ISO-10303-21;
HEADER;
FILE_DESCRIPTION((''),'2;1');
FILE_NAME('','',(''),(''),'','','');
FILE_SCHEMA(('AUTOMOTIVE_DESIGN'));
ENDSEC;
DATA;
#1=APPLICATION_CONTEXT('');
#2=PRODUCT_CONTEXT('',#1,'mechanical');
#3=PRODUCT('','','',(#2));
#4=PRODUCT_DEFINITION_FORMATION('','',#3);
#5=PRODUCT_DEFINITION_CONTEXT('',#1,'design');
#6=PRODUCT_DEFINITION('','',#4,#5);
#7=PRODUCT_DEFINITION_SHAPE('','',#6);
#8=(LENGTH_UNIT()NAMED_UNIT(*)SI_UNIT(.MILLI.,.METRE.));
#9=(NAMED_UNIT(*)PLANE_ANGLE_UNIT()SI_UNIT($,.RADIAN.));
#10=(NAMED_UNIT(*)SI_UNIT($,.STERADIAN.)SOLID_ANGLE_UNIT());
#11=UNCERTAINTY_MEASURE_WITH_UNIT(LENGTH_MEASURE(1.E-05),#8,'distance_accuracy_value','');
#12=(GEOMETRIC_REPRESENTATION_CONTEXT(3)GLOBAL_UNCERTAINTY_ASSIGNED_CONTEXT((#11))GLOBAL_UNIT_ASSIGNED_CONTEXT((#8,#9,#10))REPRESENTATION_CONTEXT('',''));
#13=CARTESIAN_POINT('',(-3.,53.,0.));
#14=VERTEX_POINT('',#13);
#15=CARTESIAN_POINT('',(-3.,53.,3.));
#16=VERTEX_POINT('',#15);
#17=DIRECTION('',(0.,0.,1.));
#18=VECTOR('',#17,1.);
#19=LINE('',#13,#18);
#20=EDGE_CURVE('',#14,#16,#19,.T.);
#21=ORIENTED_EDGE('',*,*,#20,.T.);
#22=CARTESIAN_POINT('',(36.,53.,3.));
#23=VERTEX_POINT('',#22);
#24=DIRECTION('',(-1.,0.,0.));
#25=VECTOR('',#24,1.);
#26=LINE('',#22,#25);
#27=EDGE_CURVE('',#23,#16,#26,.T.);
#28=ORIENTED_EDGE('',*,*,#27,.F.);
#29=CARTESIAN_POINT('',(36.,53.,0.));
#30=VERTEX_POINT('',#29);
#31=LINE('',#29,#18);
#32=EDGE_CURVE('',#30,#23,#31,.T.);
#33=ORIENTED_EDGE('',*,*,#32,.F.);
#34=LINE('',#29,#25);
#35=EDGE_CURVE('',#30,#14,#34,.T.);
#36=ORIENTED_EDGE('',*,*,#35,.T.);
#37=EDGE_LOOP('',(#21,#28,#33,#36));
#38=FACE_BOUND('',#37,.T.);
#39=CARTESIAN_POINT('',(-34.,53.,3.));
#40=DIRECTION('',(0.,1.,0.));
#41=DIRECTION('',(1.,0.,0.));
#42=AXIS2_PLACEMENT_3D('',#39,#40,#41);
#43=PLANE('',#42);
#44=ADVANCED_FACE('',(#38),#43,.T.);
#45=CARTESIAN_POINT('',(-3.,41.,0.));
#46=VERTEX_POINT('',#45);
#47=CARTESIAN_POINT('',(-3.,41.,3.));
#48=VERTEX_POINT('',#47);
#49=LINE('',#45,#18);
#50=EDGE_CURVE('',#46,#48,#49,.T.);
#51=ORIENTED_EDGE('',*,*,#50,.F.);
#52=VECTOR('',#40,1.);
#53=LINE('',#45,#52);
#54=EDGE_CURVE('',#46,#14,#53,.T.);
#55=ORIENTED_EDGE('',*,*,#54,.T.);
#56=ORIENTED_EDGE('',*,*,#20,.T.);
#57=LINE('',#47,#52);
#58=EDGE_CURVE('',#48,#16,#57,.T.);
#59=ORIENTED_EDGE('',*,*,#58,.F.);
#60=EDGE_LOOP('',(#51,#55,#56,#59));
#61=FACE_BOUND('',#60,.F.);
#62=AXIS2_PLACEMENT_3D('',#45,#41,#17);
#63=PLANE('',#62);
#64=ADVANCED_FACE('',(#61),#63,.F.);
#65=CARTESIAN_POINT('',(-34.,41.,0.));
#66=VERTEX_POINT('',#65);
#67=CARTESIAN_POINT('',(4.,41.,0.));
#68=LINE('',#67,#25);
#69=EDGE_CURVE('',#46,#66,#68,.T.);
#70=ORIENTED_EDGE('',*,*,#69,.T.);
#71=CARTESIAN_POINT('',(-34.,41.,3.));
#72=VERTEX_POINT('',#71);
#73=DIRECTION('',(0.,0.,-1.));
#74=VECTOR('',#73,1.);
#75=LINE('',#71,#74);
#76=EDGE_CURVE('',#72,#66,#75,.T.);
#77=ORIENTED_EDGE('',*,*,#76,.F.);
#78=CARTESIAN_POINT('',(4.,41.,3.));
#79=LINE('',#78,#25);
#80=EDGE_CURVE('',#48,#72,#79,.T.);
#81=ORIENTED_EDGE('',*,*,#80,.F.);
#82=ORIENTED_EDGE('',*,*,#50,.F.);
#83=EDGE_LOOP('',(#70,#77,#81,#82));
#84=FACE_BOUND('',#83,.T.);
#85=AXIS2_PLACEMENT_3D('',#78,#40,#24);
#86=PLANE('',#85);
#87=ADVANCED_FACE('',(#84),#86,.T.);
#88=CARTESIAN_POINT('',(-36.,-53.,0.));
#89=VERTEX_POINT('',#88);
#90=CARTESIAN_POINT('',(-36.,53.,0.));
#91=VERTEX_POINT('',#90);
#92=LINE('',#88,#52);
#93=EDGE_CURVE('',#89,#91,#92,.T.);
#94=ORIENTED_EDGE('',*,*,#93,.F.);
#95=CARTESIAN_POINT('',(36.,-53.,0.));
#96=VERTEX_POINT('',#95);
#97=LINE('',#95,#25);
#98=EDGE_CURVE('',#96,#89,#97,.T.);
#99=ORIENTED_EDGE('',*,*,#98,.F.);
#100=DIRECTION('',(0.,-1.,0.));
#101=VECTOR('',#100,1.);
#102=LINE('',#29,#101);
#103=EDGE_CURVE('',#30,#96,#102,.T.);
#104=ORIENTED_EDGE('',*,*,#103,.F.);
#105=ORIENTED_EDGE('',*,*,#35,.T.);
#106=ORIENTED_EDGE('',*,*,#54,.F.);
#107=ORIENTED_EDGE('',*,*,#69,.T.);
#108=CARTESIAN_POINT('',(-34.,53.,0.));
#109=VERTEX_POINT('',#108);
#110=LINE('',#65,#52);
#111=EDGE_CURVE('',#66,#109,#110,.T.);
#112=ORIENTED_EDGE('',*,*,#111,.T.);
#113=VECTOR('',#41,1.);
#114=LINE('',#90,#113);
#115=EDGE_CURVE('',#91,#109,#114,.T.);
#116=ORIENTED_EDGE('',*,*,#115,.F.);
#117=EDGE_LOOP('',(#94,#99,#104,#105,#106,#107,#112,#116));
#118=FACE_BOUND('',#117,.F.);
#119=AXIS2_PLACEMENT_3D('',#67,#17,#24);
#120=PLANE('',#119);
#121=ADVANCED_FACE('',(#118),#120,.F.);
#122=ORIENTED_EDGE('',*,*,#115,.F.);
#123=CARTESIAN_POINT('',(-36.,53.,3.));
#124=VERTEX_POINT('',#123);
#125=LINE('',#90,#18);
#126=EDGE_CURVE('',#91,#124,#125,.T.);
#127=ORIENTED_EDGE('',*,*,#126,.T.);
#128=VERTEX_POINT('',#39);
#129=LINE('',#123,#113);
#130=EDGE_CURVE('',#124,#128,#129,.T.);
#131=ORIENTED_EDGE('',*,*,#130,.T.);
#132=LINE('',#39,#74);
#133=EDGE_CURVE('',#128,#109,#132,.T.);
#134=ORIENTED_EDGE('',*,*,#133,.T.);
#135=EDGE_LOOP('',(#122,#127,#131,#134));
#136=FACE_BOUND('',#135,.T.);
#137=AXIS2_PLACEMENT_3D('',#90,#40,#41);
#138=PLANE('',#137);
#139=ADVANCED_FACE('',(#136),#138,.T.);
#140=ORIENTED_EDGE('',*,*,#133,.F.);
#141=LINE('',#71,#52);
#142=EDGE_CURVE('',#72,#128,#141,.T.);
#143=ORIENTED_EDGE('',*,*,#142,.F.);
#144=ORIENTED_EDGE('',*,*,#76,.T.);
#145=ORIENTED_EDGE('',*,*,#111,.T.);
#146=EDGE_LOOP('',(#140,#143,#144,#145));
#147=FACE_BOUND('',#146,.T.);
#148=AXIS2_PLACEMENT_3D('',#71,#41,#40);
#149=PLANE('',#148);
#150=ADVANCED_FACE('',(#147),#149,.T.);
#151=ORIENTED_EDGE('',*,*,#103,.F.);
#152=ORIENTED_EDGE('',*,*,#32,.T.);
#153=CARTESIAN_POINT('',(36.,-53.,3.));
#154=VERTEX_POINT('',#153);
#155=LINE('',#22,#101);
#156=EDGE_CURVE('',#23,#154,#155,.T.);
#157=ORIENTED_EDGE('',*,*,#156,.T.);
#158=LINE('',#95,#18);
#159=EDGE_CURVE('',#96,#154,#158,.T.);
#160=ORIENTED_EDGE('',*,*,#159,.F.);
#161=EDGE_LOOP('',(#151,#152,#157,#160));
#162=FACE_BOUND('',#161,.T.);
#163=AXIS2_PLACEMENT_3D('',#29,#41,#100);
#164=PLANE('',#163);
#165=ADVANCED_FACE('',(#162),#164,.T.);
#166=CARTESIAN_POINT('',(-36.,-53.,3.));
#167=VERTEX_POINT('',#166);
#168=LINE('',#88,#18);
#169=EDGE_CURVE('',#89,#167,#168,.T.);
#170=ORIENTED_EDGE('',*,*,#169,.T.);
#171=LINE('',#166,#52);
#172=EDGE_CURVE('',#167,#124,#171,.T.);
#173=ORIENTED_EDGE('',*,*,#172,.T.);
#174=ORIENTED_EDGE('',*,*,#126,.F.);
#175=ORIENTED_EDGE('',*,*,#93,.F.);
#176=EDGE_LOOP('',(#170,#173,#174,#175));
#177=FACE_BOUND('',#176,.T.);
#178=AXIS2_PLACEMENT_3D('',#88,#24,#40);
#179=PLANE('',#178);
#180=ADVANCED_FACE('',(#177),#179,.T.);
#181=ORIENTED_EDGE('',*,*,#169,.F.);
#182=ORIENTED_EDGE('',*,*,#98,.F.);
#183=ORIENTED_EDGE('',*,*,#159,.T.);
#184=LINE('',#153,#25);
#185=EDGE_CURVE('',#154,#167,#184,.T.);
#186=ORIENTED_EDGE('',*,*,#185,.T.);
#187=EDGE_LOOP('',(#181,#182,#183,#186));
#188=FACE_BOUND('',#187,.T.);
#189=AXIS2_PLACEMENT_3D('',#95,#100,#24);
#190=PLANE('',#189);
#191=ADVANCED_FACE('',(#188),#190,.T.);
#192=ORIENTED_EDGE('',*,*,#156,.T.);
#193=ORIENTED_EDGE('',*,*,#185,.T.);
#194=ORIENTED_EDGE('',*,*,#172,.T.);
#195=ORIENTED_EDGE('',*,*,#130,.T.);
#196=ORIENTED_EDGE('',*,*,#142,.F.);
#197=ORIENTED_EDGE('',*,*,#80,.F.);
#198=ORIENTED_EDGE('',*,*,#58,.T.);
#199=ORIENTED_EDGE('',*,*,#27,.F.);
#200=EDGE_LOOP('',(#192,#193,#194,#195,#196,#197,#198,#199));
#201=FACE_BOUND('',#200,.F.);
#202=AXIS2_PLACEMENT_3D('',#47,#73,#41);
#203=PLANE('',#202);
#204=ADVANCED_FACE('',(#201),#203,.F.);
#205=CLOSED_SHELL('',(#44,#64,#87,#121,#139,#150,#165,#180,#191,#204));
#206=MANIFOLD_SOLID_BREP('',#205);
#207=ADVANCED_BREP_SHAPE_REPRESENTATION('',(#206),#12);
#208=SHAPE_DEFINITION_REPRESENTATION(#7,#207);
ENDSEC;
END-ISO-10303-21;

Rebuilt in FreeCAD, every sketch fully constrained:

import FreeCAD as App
import Part
import Sketcher
from FreeCAD import Vector
Q = App.Units.Quantity

doc = App.newDocument("Part")
params = doc.addObject("Spreadsheet::Sheet", "Params")
for row, (alias, value) in enumerate([
    ("sketch1_width", "72 mm"),
    ("sketch1_height", "106 mm"),
    ("pad1_length", "3 mm"),
    ("sketch2_width", "38 mm"),
    ("sketch2_height", "12 mm"),
    ("pocket1_length", "3 mm"),
    ("sketch3_width", "7 mm"),
    ("sketch3_height", "3 mm"),
    ("pad2_length", "12 mm"),
], start=1):
    params.set(f"A{row}", alias)
    params.set(f"B{row}", "=" + value)
    params.setAlias(f"B{row}", alias)

body = doc.addObject("PartDesign::Body", "Body")

sketch1 = doc.addObject("Sketcher::SketchObject", "Sketch")
body.addObject(sketch1)
sketch1.AttachmentSupport = (doc.XY_Plane, [""])
sketch1.MapMode = "FlatFace"
sketch1.addGeometry([
    Part.LineSegment(Vector(36, 53, 0), Vector(-36, 53, 0)),
    Part.LineSegment(Vector(-36, 53, 0), Vector(-36, -53, 0)),
    Part.LineSegment(Vector(-36, -53, 0), Vector(36, -53, 0)),
    Part.LineSegment(Vector(36, -53, 0), Vector(36, 53, 0)),
], False)
sketch1.addConstraint([
    Sketcher.Constraint("Coincident", 0, 2, 1, 1),
    Sketcher.Constraint("Coincident", 1, 2, 2, 1),
    Sketcher.Constraint("Coincident", 2, 2, 3, 1),
    Sketcher.Constraint("Coincident", 3, 2, 0, 1),
    Sketcher.Constraint("Horizontal", 0),
    Sketcher.Constraint("Vertical", 1),
    Sketcher.Constraint("Horizontal", 2),
    Sketcher.Constraint("Vertical", 3),
    Sketcher.Constraint("Symmetric", 0, 2, 2, 2, -1, 1),
    Sketcher.Constraint("DistanceX", 0, 2, 0, 1, Q("72 mm")),
    Sketcher.Constraint("DistanceY", 1, 2, 1, 1, Q("106 mm")),
])
sketch1.setExpression("Constraints[9]", "Params.sketch1_width")
sketch1.setExpression("Constraints[10]", "Params.sketch1_height")
pad1 = doc.addObject("PartDesign::Pad", "Pad")
body.addObject(pad1)
pad1.Profile = sketch1
pad1.setExpression("Length", "Params.pad1_length")

sketch2 = doc.addObject("Sketcher::SketchObject", "Sketch001")
body.addObject(sketch2)
sketch2.AttachmentSupport = (doc.XY_Plane, [""])
sketch2.MapMode = "FlatFace"
sketch2.AttachmentOffset = App.Placement(Vector(0, 0, 3), App.Rotation())
sketch2.addGeometry([
    Part.LineSegment(Vector(4, 53, 0), Vector(-34, 53, 0)),
    Part.LineSegment(Vector(-34, 53, 0), Vector(-34, 41, 0)),
    Part.LineSegment(Vector(-34, 41, 0), Vector(4, 41, 0)),
    Part.LineSegment(Vector(4, 41, 0), Vector(4, 53, 0)),
], False)
sketch2.addConstraint([
    Sketcher.Constraint("Coincident", 0, 2, 1, 1),
    Sketcher.Constraint("Coincident", 1, 2, 2, 1),
    Sketcher.Constraint("Coincident", 2, 2, 3, 1),
    Sketcher.Constraint("Coincident", 3, 2, 0, 1),
    Sketcher.Constraint("Horizontal", 0),
    Sketcher.Constraint("Vertical", 1),
    Sketcher.Constraint("Horizontal", 2),
    Sketcher.Constraint("Vertical", 3),
    Sketcher.Constraint("DistanceX", 0, 2, 0, 1, Q("38 mm")),
    Sketcher.Constraint("DistanceY", 1, 2, 1, 1, Q("12 mm")),
    Sketcher.Constraint("DistanceX", 0, 2, -1, 1, Q("34 mm")),
    Sketcher.Constraint("DistanceY", -1, 1, 0, 2, Q("53 mm")),
])
sketch2.setExpression("Constraints[8]", "Params.sketch2_width")
sketch2.setExpression("Constraints[9]", "Params.sketch2_height")
pocket1 = doc.addObject("PartDesign::Pocket", "Pocket")
body.addObject(pocket1)
pocket1.Profile = sketch2
pocket1.setExpression("Length", "Params.pocket1_length")

sketch3 = doc.addObject("Sketcher::SketchObject", "Sketch002")
body.addObject(sketch3)
sketch3.AttachmentSupport = (doc.XZ_Plane, [""])
sketch3.MapMode = "FlatFace"
sketch3.AttachmentOffset = App.Placement(Vector(0, 0, -41), App.Rotation())
sketch3.addGeometry([
    Part.LineSegment(Vector(4, 3, 0), Vector(4, 0, 0)),
    Part.LineSegment(Vector(4, 0, 0), Vector(-3, 0, 0)),
    Part.LineSegment(Vector(-3, 0, 0), Vector(-3, 3, 0)),
    Part.LineSegment(Vector(-3, 3, 0), Vector(4, 3, 0)),
], False)
sketch3.addConstraint([
    Sketcher.Constraint("Coincident", 0, 2, 1, 1),
    Sketcher.Constraint("Coincident", 1, 2, 2, 1),
    Sketcher.Constraint("Coincident", 2, 2, 3, 1),
    Sketcher.Constraint("Coincident", 3, 2, 0, 1),
    Sketcher.Constraint("Vertical", 0),
    Sketcher.Constraint("Horizontal", 1),
    Sketcher.Constraint("Vertical", 2),
    Sketcher.Constraint("Horizontal", 3),
    Sketcher.Constraint("PointOnObject", 0, 2, -1),
    Sketcher.Constraint("DistanceX", 1, 2, 1, 1, Q("7 mm")),
    Sketcher.Constraint("DistanceY", 0, 2, 0, 1, Q("3 mm")),
    Sketcher.Constraint("DistanceX", 1, 2, -1, 1, Q("3 mm")),
])
sketch3.setExpression("Constraints[9]", "Params.sketch3_width")
sketch3.setExpression("Constraints[10]", "Params.sketch3_height")
pad2 = doc.addObject("PartDesign::Pad", "Pad001")
body.addObject(pad2)
pad2.Profile = sketch3
pad2.setExpression("Length", "Params.pad2_length")
pad2.Reversed = True

doc.recompute()
